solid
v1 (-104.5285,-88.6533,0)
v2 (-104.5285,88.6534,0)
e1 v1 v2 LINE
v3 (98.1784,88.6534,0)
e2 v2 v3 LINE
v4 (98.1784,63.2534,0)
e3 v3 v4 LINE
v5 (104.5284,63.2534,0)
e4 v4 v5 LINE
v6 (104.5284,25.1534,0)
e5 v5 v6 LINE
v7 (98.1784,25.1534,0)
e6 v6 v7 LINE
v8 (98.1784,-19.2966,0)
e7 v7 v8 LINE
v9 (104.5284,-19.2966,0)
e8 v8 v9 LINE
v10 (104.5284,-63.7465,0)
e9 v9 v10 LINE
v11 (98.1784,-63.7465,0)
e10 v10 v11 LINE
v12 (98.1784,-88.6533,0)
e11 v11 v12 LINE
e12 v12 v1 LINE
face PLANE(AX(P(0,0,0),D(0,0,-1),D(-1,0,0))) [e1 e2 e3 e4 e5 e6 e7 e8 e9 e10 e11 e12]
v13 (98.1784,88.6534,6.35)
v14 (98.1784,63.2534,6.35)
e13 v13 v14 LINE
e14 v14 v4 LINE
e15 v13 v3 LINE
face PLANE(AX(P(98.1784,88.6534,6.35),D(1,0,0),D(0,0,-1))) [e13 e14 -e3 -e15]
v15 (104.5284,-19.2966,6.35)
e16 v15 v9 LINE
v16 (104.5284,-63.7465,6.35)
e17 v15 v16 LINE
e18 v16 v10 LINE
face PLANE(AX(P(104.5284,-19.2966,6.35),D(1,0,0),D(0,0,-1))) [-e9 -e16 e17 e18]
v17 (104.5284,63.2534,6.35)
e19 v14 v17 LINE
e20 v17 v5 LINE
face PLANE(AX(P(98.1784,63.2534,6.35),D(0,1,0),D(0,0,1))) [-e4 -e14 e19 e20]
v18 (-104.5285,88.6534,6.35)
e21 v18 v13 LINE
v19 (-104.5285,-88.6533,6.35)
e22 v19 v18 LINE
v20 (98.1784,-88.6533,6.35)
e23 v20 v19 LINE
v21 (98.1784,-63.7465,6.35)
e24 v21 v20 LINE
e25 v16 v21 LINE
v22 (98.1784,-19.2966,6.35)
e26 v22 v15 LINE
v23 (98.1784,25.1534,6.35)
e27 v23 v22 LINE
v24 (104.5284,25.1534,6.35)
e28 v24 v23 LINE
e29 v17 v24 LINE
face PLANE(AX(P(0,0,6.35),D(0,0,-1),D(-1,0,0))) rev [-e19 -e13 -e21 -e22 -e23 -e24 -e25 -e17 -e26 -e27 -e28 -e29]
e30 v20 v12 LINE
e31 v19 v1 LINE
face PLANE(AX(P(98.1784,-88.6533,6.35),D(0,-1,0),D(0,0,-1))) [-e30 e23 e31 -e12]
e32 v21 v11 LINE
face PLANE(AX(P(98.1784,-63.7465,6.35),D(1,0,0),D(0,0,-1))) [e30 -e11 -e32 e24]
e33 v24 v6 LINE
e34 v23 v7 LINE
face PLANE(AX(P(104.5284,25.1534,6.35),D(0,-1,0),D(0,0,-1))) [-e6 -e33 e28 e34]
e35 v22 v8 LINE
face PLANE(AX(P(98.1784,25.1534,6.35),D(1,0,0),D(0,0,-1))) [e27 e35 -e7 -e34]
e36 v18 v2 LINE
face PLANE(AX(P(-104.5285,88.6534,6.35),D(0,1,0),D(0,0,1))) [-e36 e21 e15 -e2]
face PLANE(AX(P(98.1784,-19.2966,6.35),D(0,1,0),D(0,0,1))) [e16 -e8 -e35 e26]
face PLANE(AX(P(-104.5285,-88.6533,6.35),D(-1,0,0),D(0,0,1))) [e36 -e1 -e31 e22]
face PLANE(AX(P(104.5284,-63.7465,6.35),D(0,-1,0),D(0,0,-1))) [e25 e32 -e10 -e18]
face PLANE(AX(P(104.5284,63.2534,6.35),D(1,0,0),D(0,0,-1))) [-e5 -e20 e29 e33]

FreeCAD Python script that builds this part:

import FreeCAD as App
import Part
import Sketcher

V = App.Vector
Q = App.Units.Quantity


def add_polygon(sketch, points):
    """Adds a closed chain of lines whose ends are joined by coincident constraints."""
    first, n = sketch.GeometryCount, len(points)
    for a, b in zip(points, points[1:] + points[:1]):
        sketch.addGeometry(Part.LineSegment(App.Vector(*a, 0), App.Vector(*b, 0)), False)
    for i in range(n):
        sketch.addConstraint(Sketcher.Constraint("Coincident", first + i, 2, first + (i + 1) % n, 1))

doc = App.newDocument("Part")
params = doc.addObject("Spreadsheet::Sheet", "Params")
for row, (alias, value) in enumerate([
    ("sketch1_height", "1 in"),
    ("sketch1_height2", "1.5 in"),
    ("sketch1_width", "0.25 in"),
    ("sketch1_height3", "1.75 in"),
    ("pad1_length", "0.25 in"),
], start=1):
    params.set(f"A{row}", alias)
    params.set(f"B{row}", "=" + value)
    params.setAlias(f"B{row}", alias)

body = doc.addObject("PartDesign::Body", "Body")

sketch1 = body.newObject("Sketcher::SketchObject", "Sketch")
sketch1.AttachmentSupport = (doc.getObject("XY_Plane"), [""])
sketch1.MapMode = "FlatFace"
add_polygon(sketch1, [(98.1784, 88.6534), (-104.5285, 88.6534), (-104.5285, -88.6533), (98.1784, -88.6533), (98.1784, -63.7465), (104.5284, -63.7465), (104.5284, -19.2966), (98.1784, -19.2966), (98.1784, 25.1534), (104.5284, 25.1534), (104.5284, 63.2534), (98.1784, 63.2534)])
sketch1.addConstraint([
    Sketcher.Constraint("Horizontal", 0),
    Sketcher.Constraint("Vertical", 1),
    Sketcher.Constraint("Horizontal", 2),
    Sketcher.Constraint("Vertical", 3),
    Sketcher.Constraint("Horizontal", 4),
    Sketcher.Constraint("Vertical", 5),
    Sketcher.Constraint("Horizontal", 6),
    Sketcher.Constraint("Vertical", 7),
    Sketcher.Constraint("Horizontal", 8),
    Sketcher.Constraint("Vertical", 9),
    Sketcher.Constraint("Horizontal", 10),
    Sketcher.Constraint("Vertical", 11),
    Sketcher.Constraint("Vertical", 3, 2, 6, 2),
    Sketcher.Constraint("Vertical", 5, 2, 8, 2),
    Sketcher.Constraint("Vertical", 7, 2, 10, 2),
    Sketcher.Constraint("DistanceY", 11, 1, 11, 2, Q("1 in")),
    Sketcher.Constraint("DistanceY", 9, 1, 9, 2, Q("1.5 in")),
    Sketcher.Constraint("DistanceX", 4, 1, 4, 2, Q("0.25 in")),
    Sketcher.Constraint("DistanceY", 7, 1, 7, 2, Q("1.75 in")),
    Sketcher.Constraint("DistanceX", 0, 2, 0, 1, 202.7069),
    Sketcher.Constraint("DistanceY", 1, 2, 1, 1, 177.3067),
    Sketcher.Constraint("DistanceY", 3, 1, 3, 2, 24.9068),
    Sketcher.Constraint("DistanceX", 0, 2, -1, 1, 104.5285),
    Sketcher.Constraint("DistanceY", -1, 1, 0, 2, 88.6534),
])
sketch1.setExpression("Constraints[27]", "Params.sketch1_height")
sketch1.setExpression("Constraints[28]", "Params.sketch1_height2")
sketch1.setExpression("Constraints[29]", "Params.sketch1_width")
sketch1.setExpression("Constraints[30]", "Params.sketch1_height3")
pad1 = body.newObject("PartDesign::Pad", "Pad")
pad1.Profile = sketch1
pad1.setExpression("Length", "Params.pad1_length")

doc.recompute()
